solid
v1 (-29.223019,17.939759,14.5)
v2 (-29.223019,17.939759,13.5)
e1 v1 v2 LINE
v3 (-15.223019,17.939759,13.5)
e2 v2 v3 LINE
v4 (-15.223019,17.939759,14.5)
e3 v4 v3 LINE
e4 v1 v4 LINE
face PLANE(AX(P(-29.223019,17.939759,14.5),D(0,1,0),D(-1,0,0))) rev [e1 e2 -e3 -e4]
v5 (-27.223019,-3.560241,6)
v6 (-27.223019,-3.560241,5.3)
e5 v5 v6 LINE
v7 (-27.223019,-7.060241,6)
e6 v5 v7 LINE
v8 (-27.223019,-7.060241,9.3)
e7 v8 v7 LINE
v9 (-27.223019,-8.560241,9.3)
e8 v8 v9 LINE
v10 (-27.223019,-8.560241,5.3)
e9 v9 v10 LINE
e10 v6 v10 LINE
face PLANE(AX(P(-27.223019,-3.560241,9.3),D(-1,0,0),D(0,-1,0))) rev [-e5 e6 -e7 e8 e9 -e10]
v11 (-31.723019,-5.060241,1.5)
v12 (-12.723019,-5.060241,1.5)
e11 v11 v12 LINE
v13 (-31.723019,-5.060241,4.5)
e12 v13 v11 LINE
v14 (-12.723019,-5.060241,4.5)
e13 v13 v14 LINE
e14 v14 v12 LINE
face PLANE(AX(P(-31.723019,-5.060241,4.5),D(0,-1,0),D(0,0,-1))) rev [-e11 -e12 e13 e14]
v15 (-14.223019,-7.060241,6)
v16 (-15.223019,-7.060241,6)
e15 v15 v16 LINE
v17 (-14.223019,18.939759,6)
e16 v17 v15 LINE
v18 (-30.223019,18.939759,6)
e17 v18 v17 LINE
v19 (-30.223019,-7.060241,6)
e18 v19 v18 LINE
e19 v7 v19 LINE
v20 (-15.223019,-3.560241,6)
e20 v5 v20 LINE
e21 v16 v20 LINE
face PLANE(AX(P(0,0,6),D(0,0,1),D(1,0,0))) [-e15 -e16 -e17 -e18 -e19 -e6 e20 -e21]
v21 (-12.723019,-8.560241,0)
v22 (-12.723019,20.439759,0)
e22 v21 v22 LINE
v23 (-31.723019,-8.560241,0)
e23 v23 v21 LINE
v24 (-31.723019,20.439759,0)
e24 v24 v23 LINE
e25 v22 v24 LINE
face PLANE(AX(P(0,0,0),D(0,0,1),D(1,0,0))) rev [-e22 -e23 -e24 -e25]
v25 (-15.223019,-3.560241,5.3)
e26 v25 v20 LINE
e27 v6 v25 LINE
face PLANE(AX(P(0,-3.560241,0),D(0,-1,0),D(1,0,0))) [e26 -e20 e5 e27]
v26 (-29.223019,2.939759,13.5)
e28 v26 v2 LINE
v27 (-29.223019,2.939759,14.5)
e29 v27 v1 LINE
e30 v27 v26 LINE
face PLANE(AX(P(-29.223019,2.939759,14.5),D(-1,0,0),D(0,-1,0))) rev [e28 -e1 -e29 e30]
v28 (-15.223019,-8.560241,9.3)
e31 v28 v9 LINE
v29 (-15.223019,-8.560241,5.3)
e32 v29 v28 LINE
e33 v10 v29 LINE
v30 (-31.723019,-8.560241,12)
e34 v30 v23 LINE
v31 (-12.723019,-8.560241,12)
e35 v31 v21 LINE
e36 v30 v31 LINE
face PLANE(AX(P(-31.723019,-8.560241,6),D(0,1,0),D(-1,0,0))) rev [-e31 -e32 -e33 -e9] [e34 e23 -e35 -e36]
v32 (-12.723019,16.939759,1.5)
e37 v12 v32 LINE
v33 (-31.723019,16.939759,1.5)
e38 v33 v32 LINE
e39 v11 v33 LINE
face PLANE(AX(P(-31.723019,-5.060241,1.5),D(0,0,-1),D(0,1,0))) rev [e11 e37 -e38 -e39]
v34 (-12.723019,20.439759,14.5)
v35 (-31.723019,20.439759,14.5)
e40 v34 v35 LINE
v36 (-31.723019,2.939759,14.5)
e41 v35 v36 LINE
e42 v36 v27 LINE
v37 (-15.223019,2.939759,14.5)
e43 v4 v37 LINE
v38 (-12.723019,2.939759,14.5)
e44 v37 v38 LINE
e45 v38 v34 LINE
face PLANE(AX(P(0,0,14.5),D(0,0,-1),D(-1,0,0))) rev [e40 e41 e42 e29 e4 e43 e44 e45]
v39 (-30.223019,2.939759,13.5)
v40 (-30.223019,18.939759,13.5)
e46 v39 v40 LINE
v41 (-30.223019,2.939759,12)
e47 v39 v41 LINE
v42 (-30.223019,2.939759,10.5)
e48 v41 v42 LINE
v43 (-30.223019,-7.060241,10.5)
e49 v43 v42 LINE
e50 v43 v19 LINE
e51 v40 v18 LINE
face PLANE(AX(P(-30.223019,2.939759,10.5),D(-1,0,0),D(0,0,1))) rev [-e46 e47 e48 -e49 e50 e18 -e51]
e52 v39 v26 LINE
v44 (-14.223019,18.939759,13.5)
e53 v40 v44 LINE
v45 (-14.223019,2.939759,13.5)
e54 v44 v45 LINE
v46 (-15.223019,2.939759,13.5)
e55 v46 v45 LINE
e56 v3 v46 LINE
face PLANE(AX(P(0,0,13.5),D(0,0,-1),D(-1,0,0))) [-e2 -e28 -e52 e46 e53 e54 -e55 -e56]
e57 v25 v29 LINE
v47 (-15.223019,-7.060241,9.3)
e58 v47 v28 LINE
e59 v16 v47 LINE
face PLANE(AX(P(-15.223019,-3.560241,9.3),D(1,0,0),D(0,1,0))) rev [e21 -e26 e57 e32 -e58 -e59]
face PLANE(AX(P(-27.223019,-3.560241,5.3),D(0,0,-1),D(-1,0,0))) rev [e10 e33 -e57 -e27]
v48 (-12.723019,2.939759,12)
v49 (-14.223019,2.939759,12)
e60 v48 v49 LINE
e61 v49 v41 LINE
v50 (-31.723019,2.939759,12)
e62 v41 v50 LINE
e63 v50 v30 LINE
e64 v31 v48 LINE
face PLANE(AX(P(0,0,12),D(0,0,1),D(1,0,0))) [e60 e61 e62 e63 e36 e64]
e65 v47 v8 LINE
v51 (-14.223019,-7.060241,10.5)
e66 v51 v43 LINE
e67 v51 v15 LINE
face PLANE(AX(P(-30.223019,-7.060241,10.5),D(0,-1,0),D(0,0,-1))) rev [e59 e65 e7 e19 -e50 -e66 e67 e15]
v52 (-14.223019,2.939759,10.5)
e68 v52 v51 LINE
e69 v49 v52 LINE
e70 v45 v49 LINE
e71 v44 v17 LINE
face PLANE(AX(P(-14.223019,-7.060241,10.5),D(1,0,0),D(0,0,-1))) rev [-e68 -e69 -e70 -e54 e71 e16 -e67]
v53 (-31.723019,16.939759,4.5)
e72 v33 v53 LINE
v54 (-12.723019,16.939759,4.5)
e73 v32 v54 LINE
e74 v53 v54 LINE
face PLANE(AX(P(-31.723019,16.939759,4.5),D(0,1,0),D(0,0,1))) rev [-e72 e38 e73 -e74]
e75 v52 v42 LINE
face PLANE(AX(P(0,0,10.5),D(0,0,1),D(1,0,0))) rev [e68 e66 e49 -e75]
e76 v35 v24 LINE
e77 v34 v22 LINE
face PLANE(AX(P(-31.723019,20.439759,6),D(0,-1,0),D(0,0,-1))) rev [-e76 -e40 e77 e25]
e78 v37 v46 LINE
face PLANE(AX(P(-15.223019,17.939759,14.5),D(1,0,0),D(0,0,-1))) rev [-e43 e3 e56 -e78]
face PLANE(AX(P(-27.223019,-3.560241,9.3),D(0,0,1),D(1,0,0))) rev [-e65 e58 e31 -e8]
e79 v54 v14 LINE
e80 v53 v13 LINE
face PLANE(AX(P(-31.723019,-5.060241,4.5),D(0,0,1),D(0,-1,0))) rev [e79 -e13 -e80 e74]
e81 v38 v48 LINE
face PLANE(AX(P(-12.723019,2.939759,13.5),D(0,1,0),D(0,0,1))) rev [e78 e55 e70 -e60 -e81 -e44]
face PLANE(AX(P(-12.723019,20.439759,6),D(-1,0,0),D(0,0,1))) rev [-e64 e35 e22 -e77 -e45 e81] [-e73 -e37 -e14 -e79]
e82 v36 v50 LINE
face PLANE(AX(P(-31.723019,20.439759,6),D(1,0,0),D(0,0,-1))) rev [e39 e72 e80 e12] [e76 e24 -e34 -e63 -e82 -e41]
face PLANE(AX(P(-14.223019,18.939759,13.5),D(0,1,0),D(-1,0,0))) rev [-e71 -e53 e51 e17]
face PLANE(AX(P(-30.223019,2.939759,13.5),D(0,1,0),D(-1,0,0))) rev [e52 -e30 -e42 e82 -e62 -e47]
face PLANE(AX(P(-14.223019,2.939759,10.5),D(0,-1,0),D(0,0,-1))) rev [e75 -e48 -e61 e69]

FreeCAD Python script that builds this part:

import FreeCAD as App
import Part
import Sketcher
from FreeCAD import Vector


def add_polygon(sketch, points):
    """Adds a closed chain of lines whose ends are joined by coincident constraints."""
    first, n = sketch.GeometryCount, len(points)
    for a, b in zip(points, points[1:] + points[:1]):
        sketch.addGeometry(Part.LineSegment(App.Vector(*a, 0), App.Vector(*b, 0)), False)
    for i in range(n):
        sketch.addConstraint(Sketcher.Constraint("Coincident", first + i, 2, first + (i + 1) % n, 1))

doc = App.newDocument("Part")
body = doc.addObject("PartDesign::Body", "Body")

# Sketch on XY plane
sketch1 = body.newObject("Sketcher::SketchObject", "Sketch")
sketch1.AttachmentSupport = (doc.getObject("XY_Plane"), [""])
sketch1.MapMode = "FlatFace"
add_polygon(sketch1, [(-32, 20), (-32, -9), (-13, -9), (-13, 20)])  # lines 0-3
sketch1.addConstraint([
    Sketcher.Constraint("Vertical", 0),
    Sketcher.Constraint("Horizontal", 1),
    Sketcher.Constraint("Vertical", 2),
    Sketcher.Constraint("Horizontal", 3),
    Sketcher.Constraint("DistanceX", 1, 1, 1, 2, 19.0),
    Sketcher.Constraint("DistanceY", 0, 2, 0, 1, 29.0),
    Sketcher.Constraint("DistanceX", 0, 2, -1, 1, 31.723019),
    Sketcher.Constraint("DistanceY", 0, 2, -1, 1, 8.560241),
])
pad1 = body.newObject("PartDesign::Pad", "Pad")
pad1.Profile = sketch1
pad1.Length = 6

# Sketch on XY plane
sketch2 = body.newObject("Sketcher::SketchObject", "Sketch001")
sketch2.AttachmentSupport = (doc.getObject("XY_Plane"), [""])
sketch2.MapMode = "FlatFace"
sketch2.AttachmentOffset = App.Placement(Vector(0, 0, 6), App.Rotation())
add_polygon(sketch2, [(-31.7, 2.9), (-31.7, -8.6), (-12.7, -8.6), (-12.7, 2.9), (-14.2, 2.9), (-14.2, -7.1), (-30.2, -7.1), (-30.2, 2.9)])  # lines 0-7
sketch2.addConstraint([
    Sketcher.Constraint("Vertical", 0),
    Sketcher.Constraint("Horizontal", 1),
    Sketcher.Constraint("Vertical", 2),
    Sketcher.Constraint("Horizontal", 3),
    Sketcher.Constraint("Vertical", 4),
    Sketcher.Constraint("Horizontal", 5),
    Sketcher.Constraint("Vertical", 6),
    Sketcher.Constraint("Horizontal", 7),
    Sketcher.Constraint("Horizontal", 3, 2, 6, 2),
    Sketcher.Constraint("Equal", 3, 7),
    Sketcher.Constraint("DistanceX", 1, 1, 1, 2, 19.0),
    Sketcher.Constraint("DistanceX", 5, 2, 5, 1, 16.0),
    Sketcher.Constraint("DistanceY", 4, 2, 4, 1, 10.0),
    Sketcher.Constraint("DistanceY", 0, 2, 0, 1, 11.5),
    Sketcher.Constraint("DistanceX", 0, 2, -1, 1, 31.723019),
    Sketcher.Constraint("DistanceY", 0, 2, -1, 1, 8.560241),
])
pad2 = body.newObject("PartDesign::Pad", "Pad001")
pad2.Profile = sketch2
pad2.Length = 4.5

# Sketch on XY plane
sketch3 = body.newObject("Sketcher::SketchObject", "Sketch002")
sketch3.AttachmentSupport = (doc.getObject("XY_Plane"), [""])
sketch3.MapMode = "FlatFace"
sketch3.AttachmentOffset = App.Placement(Vector(0, 0, 10.5), App.Rotation())
add_polygon(sketch3, [(-32, 3), (-32, -9), (-13, -9), (-13, 3)])  # lines 0-3
sketch3.addConstraint([
    Sketcher.Constraint("Vertical", 0),
    Sketcher.Constraint("Horizontal", 1),
    Sketcher.Constraint("Vertical", 2),
    Sketcher.Constraint("Horizontal", 3),
    Sketcher.Constraint("DistanceX", 1, 1, 1, 2, 19.0),
    Sketcher.Constraint("DistanceY", 0, 2, 0, 1, 11.5),
    Sketcher.Constraint("DistanceX", 0, 2, -1, 1, 31.723019),
    Sketcher.Constraint("DistanceY", 0, 2, -1, 1, 8.560241),
])
pad3 = body.newObject("PartDesign::Pad", "Pad002")
pad3.Profile = sketch3
pad3.Length = 1.5

# Sketch on XZ plane
sketch4 = body.newObject("Sketcher::SketchObject", "Sketch003")
sketch4.AttachmentSupport = (doc.getObject("XZ_Plane"), [""])
sketch4.MapMode = "FlatFace"
sketch4.AttachmentOffset = App.Placement(Vector(0, 0, 8.560241), App.Rotation())
add_polygon(sketch4, [(-27.2, 9.3), (-27.2, 5.3), (-15.2, 5.3), (-15.2, 9.3)])  # lines 0-3
sketch4.addConstraint([
    Sketcher.Constraint("Vertical", 0),
    Sketcher.Constraint("Horizontal", 1),
    Sketcher.Constraint("Vertical", 2),
    Sketcher.Constraint("Horizontal", 3),
    Sketcher.Constraint("DistanceX", 1, 1, 1, 2, 12.0),
    Sketcher.Constraint("DistanceY", 0, 2, 0, 1, 4.0),
    Sketcher.Constraint("DistanceY", -1, 1, 0, 2, 5.3),
    Sketcher.Constraint("DistanceX", 0, 2, -1, 1, 27.223019),
])
pocket1 = body.newObject("PartDesign::Pocket", "Pocket")
pocket1.Profile = sketch4
pocket1.Length = 5

# Sketch on XY plane
sketch5 = body.newObject("Sketcher::SketchObject", "Sketch004")
sketch5.AttachmentSupport = (doc.getObject("XY_Plane"), [""])
sketch5.MapMode = "FlatFace"
sketch5.AttachmentOffset = App.Placement(Vector(0, 0, 6), App.Rotation())
add_polygon(sketch5, [(-31.7, 2.9), (-30.2, 2.9), (-30.2, 18.9), (-14.2, 18.9), (-14.2, 2.9), (-12.7, 2.9), (-12.7, 20.4), (-31.7, 20.4)])  # lines 0-7
sketch5.addConstraint([
    Sketcher.Constraint("Horizontal", 0),
    Sketcher.Constraint("Vertical", 1),
    Sketcher.Constraint("Horizontal", 2),
    Sketcher.Constraint("Vertical", 3),
    Sketcher.Constraint("Horizontal", 4),
    Sketcher.Constraint("Vertical", 5),
    Sketcher.Constraint("Horizontal", 6),
    Sketcher.Constraint("Vertical", 7),
    Sketcher.Constraint("Horizontal", 0, 2, 3, 2),
    Sketcher.Constraint("Equal", 0, 4),
    Sketcher.Constraint("Equal", 2, 1),
    Sketcher.Constraint("DistanceX", 2, 1, 2, 2, 16.0),
    Sketcher.Constraint("DistanceX", 6, 2, 6, 1, 19.0),
    Sketcher.Constraint("DistanceY", 5, 1, 5, 2, 17.5),
    Sketcher.Constraint("DistanceX", 0, 2, -1, 1, 30.223019),
    Sketcher.Constraint("DistanceY", -1, 1, 0, 2, 2.939759),
])
pad4 = body.newObject("PartDesign::Pad", "Pad003")
pad4.Profile = sketch5
pad4.Length = 7.5

# Sketch on XY plane
sketch6 = body.newObject("Sketcher::SketchObject", "Sketch005")
sketch6.AttachmentSupport = (doc.getObject("XY_Plane"), [""])
sketch6.MapMode = "FlatFace"
sketch6.AttachmentOffset = App.Placement(Vector(0, 0, 13.5), App.Rotation())
add_polygon(sketch6, [(-31.7, 2.9), (-29.2, 2.9), (-29.2, 17.9), (-15.2, 17.9), (-15.2, 2.9), (-12.7, 2.9), (-12.7, 20.4), (-31.7, 20.4)])  # lines 0-7
sketch6.addConstraint([
    Sketcher.Constraint("Horizontal", 0),
    Sketcher.Constraint("Vertical", 1),
    Sketcher.Constraint("Horizontal", 2),
    Sketcher.Constraint("Vertical", 3),
    Sketcher.Constraint("Horizontal", 4),
    Sketcher.Constraint("Vertical", 5),
    Sketcher.Constraint("Horizontal", 6),
    Sketcher.Constraint("Vertical", 7),
    Sketcher.Constraint("Horizontal", 0, 2, 3, 2),
    Sketcher.Constraint("Equal", 0, 4),
    Sketcher.Constraint("DistanceX", 2, 1, 2, 2, 14.0),
    Sketcher.Constraint("DistanceX", 6, 2, 6, 1, 19.0),
    Sketcher.Constraint("DistanceY", 1, 1, 1, 2, 15.0),
    Sketcher.Constraint("DistanceY", 5, 1, 5, 2, 17.5),
    Sketcher.Constraint("DistanceX", 0, 2, -1, 1, 29.223019),
    Sketcher.Constraint("DistanceY", -1, 1, 0, 2, 2.939759),
])
pad5 = body.newObject("PartDesign::Pad", "Pad004")
pad5.Profile = sketch6
pad5.Length = 1

# Sketch on YZ plane
sketch7 = body.newObject("Sketcher::SketchObject", "Sketch006")
sketch7.AttachmentSupport = (doc.getObject("YZ_Plane"), [""])
sketch7.MapMode = "FlatFace"
sketch7.AttachmentOffset = App.Placement(Vector(0, 0, -31.723019), App.Rotation())
add_polygon(sketch7, [(16.9, 4.5), (-5.1, 4.5), (-5.1, 1.5), (16.9, 1.5)])  # lines 0-3
sketch7.addConstraint([
    Sketcher.Constraint("Horizontal", 0),
    Sketcher.Constraint("Vertical", 1),
    Sketcher.Constraint("Horizontal", 2),
    Sketcher.Constraint("Vertical", 3),
    Sketcher.Constraint("DistanceX", 0, 2, 0, 1, 22.0),
    Sketcher.Constraint("DistanceY", 1, 2, 1, 1, 3.0),
    Sketcher.Constraint("DistanceY", -1, 1, 0, 2, 4.5),
    Sketcher.Constraint("DistanceX", 0, 2, -1, 1, 5.060241),
])
pocket2 = body.newObject("PartDesign::Pocket", "Pocket001")
pocket2.Profile = sketch7
pocket2.Length = 19
pocket2.Reversed = True

doc.recompute()
